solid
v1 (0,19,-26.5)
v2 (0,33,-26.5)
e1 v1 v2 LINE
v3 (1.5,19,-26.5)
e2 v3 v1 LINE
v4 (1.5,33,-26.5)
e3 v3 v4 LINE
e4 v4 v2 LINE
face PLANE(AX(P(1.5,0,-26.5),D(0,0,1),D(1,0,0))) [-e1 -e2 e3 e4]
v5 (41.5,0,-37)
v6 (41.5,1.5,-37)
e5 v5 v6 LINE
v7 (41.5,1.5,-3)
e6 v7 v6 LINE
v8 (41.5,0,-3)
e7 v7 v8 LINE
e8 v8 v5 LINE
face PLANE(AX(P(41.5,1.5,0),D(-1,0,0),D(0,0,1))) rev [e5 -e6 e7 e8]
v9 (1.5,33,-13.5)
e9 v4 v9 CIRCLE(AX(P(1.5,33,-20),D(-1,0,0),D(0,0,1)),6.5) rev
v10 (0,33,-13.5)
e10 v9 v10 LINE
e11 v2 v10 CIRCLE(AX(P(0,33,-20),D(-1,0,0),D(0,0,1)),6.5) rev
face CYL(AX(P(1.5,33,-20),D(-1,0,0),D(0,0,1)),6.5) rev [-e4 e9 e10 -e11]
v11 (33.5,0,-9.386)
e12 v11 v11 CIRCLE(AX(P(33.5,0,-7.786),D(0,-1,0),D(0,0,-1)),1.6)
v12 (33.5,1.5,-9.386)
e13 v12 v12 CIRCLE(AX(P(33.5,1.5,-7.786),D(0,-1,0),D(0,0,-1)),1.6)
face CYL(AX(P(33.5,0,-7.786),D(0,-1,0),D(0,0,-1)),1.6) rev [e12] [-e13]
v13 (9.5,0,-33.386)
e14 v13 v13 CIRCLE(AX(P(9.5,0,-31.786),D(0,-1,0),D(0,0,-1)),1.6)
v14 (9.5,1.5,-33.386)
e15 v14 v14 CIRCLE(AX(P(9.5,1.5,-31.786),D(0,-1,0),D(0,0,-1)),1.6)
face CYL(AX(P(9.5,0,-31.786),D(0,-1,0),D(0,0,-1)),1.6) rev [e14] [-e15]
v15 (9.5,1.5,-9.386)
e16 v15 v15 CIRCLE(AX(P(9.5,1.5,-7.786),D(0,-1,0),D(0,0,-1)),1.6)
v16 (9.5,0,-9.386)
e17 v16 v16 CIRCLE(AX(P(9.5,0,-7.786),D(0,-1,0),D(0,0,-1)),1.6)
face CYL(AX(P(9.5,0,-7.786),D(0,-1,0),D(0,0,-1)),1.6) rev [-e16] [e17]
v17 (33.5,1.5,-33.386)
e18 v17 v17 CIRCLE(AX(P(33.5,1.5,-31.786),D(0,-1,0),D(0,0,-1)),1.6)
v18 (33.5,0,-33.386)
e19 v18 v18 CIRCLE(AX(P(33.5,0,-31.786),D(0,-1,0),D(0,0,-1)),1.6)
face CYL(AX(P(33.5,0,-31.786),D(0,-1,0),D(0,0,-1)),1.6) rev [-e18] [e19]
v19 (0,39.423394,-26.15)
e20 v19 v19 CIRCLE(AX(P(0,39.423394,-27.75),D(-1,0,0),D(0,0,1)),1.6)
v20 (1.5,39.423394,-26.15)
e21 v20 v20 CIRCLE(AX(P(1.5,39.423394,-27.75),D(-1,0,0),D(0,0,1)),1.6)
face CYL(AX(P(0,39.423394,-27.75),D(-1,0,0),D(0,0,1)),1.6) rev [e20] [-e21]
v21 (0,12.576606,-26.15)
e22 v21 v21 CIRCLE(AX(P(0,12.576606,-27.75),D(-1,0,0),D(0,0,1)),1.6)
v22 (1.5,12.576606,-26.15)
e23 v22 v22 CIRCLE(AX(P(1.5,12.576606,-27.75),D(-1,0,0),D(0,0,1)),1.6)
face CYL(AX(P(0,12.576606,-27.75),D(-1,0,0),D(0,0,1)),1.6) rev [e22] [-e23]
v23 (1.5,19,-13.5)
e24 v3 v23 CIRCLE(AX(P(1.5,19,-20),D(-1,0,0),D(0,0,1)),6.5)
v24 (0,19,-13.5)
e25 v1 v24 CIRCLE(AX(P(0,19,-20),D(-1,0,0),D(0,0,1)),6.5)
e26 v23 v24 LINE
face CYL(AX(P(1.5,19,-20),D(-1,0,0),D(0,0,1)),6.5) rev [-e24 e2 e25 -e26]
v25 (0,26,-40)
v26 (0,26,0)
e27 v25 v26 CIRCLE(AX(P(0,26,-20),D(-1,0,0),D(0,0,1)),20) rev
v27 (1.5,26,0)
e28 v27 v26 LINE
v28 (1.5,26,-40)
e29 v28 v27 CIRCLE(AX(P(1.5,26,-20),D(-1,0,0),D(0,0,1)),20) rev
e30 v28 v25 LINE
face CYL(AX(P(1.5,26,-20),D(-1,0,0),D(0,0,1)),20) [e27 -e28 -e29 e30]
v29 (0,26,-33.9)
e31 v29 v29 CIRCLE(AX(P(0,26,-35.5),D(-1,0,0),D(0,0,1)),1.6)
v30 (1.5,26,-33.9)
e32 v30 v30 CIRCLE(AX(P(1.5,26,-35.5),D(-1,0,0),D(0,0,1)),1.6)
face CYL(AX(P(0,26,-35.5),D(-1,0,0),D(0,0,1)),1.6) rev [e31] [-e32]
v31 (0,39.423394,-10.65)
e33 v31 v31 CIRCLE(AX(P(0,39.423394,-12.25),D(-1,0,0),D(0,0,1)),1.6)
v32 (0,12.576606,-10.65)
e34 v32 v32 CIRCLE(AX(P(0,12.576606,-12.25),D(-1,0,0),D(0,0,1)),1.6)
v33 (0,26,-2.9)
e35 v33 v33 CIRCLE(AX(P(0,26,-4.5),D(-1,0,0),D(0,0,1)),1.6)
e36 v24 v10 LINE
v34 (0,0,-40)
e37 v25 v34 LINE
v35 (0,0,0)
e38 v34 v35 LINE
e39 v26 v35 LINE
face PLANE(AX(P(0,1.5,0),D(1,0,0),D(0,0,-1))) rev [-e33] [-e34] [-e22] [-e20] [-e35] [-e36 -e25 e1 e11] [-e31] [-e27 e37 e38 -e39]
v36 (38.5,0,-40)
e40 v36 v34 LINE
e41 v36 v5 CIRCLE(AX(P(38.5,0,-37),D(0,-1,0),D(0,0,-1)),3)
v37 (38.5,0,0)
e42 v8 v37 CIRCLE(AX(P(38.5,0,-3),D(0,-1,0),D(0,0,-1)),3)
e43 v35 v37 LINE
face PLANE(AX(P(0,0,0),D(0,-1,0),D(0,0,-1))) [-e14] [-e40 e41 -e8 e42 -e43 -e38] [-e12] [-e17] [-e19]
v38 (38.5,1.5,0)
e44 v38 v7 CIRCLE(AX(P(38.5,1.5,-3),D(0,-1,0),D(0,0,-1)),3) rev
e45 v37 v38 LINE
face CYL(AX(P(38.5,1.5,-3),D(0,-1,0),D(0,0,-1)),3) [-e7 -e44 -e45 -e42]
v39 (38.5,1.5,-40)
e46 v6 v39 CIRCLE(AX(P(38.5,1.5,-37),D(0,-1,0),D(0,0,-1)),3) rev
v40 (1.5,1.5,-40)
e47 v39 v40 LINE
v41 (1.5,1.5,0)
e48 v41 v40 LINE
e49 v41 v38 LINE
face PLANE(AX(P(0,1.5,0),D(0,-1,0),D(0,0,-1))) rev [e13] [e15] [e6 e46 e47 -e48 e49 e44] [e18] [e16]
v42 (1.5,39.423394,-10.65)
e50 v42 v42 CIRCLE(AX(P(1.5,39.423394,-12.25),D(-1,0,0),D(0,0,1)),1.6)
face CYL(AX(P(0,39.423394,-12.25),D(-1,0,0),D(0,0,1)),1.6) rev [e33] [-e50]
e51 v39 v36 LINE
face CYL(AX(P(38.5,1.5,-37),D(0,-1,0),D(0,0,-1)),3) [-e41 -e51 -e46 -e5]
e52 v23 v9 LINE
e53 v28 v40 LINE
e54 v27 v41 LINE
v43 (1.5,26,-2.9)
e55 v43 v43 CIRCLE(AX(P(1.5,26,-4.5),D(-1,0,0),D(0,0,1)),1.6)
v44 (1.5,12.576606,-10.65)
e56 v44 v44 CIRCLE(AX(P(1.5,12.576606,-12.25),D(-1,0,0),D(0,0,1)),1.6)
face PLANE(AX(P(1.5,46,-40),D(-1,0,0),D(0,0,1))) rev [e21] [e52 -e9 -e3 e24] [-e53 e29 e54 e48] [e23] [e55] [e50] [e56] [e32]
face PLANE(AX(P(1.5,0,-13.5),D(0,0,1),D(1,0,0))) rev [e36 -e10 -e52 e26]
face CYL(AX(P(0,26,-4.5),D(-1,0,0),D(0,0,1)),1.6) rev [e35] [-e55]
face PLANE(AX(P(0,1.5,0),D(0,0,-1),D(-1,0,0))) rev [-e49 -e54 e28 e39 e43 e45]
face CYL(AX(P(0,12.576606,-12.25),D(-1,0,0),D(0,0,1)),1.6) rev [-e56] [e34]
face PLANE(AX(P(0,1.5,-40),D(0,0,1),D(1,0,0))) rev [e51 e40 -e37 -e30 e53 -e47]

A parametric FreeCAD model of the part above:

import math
import FreeCAD as App
import Part
import Sketcher
from FreeCAD import Vector


def edges_at(feature, points):
    """Names of the edges that pass closest to the given points."""
    edges = feature.Shape.Edges
    near = lambda p: min(range(len(edges)), key=lambda i: edges[i].distToShape(Part.Vertex(*p))[0])
    return sorted({f"Edge{near(p) + 1}" for p in points})


def add_polygon(sketch, points):
    """Adds a closed chain of lines whose ends are joined by coincident constraints."""
    first, n = sketch.GeometryCount, len(points)
    for a, b in zip(points, points[1:] + points[:1]):
        sketch.addGeometry(Part.LineSegment(App.Vector(*a, 0), App.Vector(*b, 0)), False)
    for i in range(n):
        sketch.addConstraint(Sketcher.Constraint("Coincident", first + i, 2, first + (i + 1) % n, 1))

doc = App.newDocument("Part")
params = doc.addObject("Spreadsheet::Sheet", "Params")
for row, (alias, value) in enumerate([
    ("sketch1_height", "40 mm"),
    ("sketch1_width", "41.5 mm"),
    ("pad1_length", "1.5 mm"),
    ("sketch2_height", "40 mm"),
    ("sketch2_width", "1.5 mm"),
    ("pad2_length", "44.5 mm"),
    ("sketch3_radius", "20 mm"),
    ("sketch3_radius2", "6.5 mm"),
    ("sketch3_width", "14 mm"),
    ("pocket1_length", "1.5 mm"),
    ("sketch4_diameter", "3.2 mm"),
    ("hole_diameter", "3.2 mm"),
    ("sketch5_diameter", "3.2 mm"),
    ("hole2_diameter", "3.2 mm"),
    ("hole2_depth", "1.5 mm"),
    ("fillet_radius", "3 mm"),
], start=1):
    params.set(f"A{row}", alias)
    params.set(f"B{row}", "=" + value)
    params.setAlias(f"B{row}", alias)

body = doc.addObject("PartDesign::Body", "Body")

sketch1 = doc.addObject("Sketcher::SketchObject", "Sketch")
body.addObject(sketch1)
sketch1.AttachmentSupport = (doc.XZ_Plane, [""])
sketch1.MapMode = "FlatFace"
add_polygon(sketch1, [(0, -40), (0, 0), (41.5, 0), (41.5, -40)])
sketch1.addConstraint([
    Sketcher.Constraint("Vertical", 0),
    Sketcher.Constraint("Horizontal", 1),
    Sketcher.Constraint("Vertical", 2),
    Sketcher.Constraint("Horizontal", 3),
    Sketcher.Constraint("Coincident", 0, 2, -1, 1),
    Sketcher.Constraint("DistanceY", 0, 1, 0, 2, 40.0),
    Sketcher.Constraint("DistanceX", 1, 1, 1, 2, 41.5),
])
sketch1.setExpression("Constraints[9]", "Params.sketch1_height")
sketch1.setExpression("Constraints[10]", "Params.sketch1_width")
pad1 = doc.addObject("PartDesign::Pad", "Pad")
body.addObject(pad1)
pad1.Profile = sketch1
pad1.setExpression("Length", "Params.pad1_length")
pad1.Reversed = True

sketch2 = doc.addObject("Sketcher::SketchObject", "Sketch001")
body.addObject(sketch2)
sketch2.AttachmentSupport = (doc.XZ_Plane, [""])
sketch2.MapMode = "FlatFace"
sketch2.AttachmentOffset = App.Placement(Vector(0, 0, -1.5), App.Rotation())
add_polygon(sketch2, [(0, -40), (0, 0), (1.5, 0), (1.5, -40)])
sketch2.addConstraint([
    Sketcher.Constraint("Vertical", 0),
    Sketcher.Constraint("Horizontal", 1),
    Sketcher.Constraint("Vertical", 2),
    Sketcher.Constraint("Horizontal", 3),
    Sketcher.Constraint("Coincident", 0, 2, -1, 1),
    Sketcher.Constraint("DistanceY", 0, 1, 0, 2, 40.0),
    Sketcher.Constraint("DistanceX", 1, 1, 1, 2, 1.5),
])
sketch2.setExpression("Constraints[9]", "Params.sketch2_height")
sketch2.setExpression("Constraints[10]", "Params.sketch2_width")
pad2 = doc.addObject("PartDesign::Pad", "Pad001")
body.addObject(pad2)
pad2.Profile = sketch2
pad2.setExpression("Length", "Params.pad2_length")
pad2.Reversed = True

sketch3 = doc.addObject("Sketcher::SketchObject", "Sketch002")
body.addObject(sketch3)
sketch3.AttachmentSupport = (doc.YZ_Plane, [""])
sketch3.MapMode = "FlatFace"
sketch3.addGeometry([
    Part.LineSegment(Vector(46, -40, 0), Vector(26, -40, 0)),
    Part.ArcOfCircle(Part.Circle(Vector(26, -20, 0), Vector(0, 0, 1), 20), math.radians(-90), math.radians(0)),
    Part.LineSegment(Vector(46, -20, 0), Vector(46, -40, 0)),
    Part.LineSegment(Vector(46, 0, 0), Vector(46, -20, 0)),
    Part.ArcOfCircle(Part.Circle(Vector(26, -20, 0), Vector(0, 0, 1), 20), math.radians(0), math.radians(90)),
    Part.LineSegment(Vector(26, 0, 0), Vector(46, 0, 0)),
    Part.LineSegment(Vector(33, -26.5, 0), Vector(19, -26.5, 0)),
    Part.ArcOfCircle(Part.Circle(Vector(19, -20, 0), Vector(0, 0, 1), 6.5), math.radians(90), math.radians(270)),
    Part.LineSegment(Vector(19, -13.5, 0), Vector(33, -13.5, 0)),
    Part.ArcOfCircle(Part.Circle(Vector(33, -20, 0), Vector(0, 0, 1), 6.5), math.radians(-90), math.radians(90)),
], False)
sketch3.addConstraint([
    Sketcher.Constraint("Tangent", 0, 2, 1, 1),
    Sketcher.Constraint("Tangent", 1, 2, 2, 1),
    Sketcher.Constraint("Coincident", 2, 2, 0, 1),
    Sketcher.Constraint("Tangent", 3, 2, 4, 1),
    Sketcher.Constraint("Tangent", 4, 2, 5, 1),
    Sketcher.Constraint("Coincident", 5, 2, 3, 1),
    Sketcher.Constraint("Tangent", 6, 2, 7, 2),
    Sketcher.Constraint("Tangent", 7, 1, 8, 1),
    Sketcher.Constraint("Tangent", 8, 2, 9, 2),
    Sketcher.Constraint("Tangent", 9, 1, 6, 1),
    Sketcher.Constraint("Horizontal", 0),
    Sketcher.Constraint("Vertical", 2),
    Sketcher.Constraint("Vertical", 3),
    Sketcher.Constraint("Horizontal", 5),
    Sketcher.Constraint("Horizontal", 6),
    Sketcher.Constraint("Horizontal", 8),
    Sketcher.Constraint("Coincident", 4, 3, 1, 3),
    Sketcher.Constraint("Equal", 1, 4),
    Sketcher.Constraint("PointOnObject", 4, 2, -1),
    Sketcher.Constraint("Horizontal", 4, 3, 7, 3),
    Sketcher.Constraint("Radius", 1, 20.0),
    Sketcher.Constraint("Radius", 7, 6.5),
    Sketcher.Constraint("DistanceX", 6, 2, 6, 1, 14.0),
    Sketcher.Constraint("DistanceX", -1, 1, 1, 3, 26.0),
    Sketcher.Constraint("DistanceX", -1, 1, 7, 3, 19.0),
])
sketch3.setExpression("Constraints[20]", "Params.sketch3_radius")
sketch3.setExpression("Constraints[21]", "Params.sketch3_radius2")
sketch3.setExpression("Constraints[22]", "Params.sketch3_width")
pocket1 = doc.addObject("PartDesign::Pocket", "Pocket")
body.addObject(pocket1)
pocket1.Profile = sketch3
pocket1.setExpression("Length", "Params.pocket1_length")
pocket1.Reversed = True

sketch4 = doc.addObject("Sketcher::SketchObject", "Sketch003")
body.addObject(sketch4)
sketch4.AttachmentSupport = (doc.YZ_Plane, [""])
sketch4.MapMode = "FlatFace"
sketch4.addGeometry([
    Part.Circle(Vector(39.423394, -12.25, 0), Vector(0, 0, 1), 1.6),
    Part.Circle(Vector(26, -4.5, 0), Vector(0, 0, 1), 1.6),
    Part.Circle(Vector(12.576606, -12.25, 0), Vector(0, 0, 1), 1.6),
    Part.Circle(Vector(12.576606, -27.75, 0), Vector(0, 0, 1), 1.6),
    Part.Circle(Vector(26, -35.5, 0), Vector(0, 0, 1), 1.6),
    Part.Circle(Vector(39.423394, -27.75, 0), Vector(0, 0, 1), 1.6),
], False)
sketch4.addConstraint([
    Sketcher.Constraint("Equal", 0, 1),
    Sketcher.Constraint("Equal", 1, 2),
    Sketcher.Constraint("Equal", 2, 3),
    Sketcher.Constraint("Equal", 3, 4),
    Sketcher.Constraint("Equal", 4, 5),
    Sketcher.Constraint("Horizontal", 0, 3, 2, 3),
    Sketcher.Constraint("Horizontal", 3, 3, 5, 3),
    Sketcher.Constraint("Vertical", 2, 3, 3, 3),
    Sketcher.Constraint("Vertical", 1, 3, 4, 3),
    Sketcher.Constraint("Vertical", 0, 3, 5, 3),
    Sketcher.Constraint("Diameter", 0, 3.2),
    Sketcher.Constraint("DistanceX", -1, 1, 1, 3, 26.0),
    Sketcher.Constraint("DistanceY", 4, 3, 1, 3, 31.0),
    Sketcher.Constraint("DistanceY", 1, 3, -1, 1, 4.5),
    Sketcher.Constraint("DistanceY", 3, 3, 2, 3, 15.5),
    Sketcher.Constraint("DistanceY", 0, 3, -1, 1, 12.25),
    Sketcher.Constraint("DistanceX", -1, 1, 0, 3, 39.423394),
    Sketcher.Constraint("DistanceX", -1, 1, 2, 3, 12.576606),
])
sketch4.setExpression("Constraints[10]", "Params.sketch4_diameter")
doc.recompute()
hole = doc.addObject("PartDesign::Hole", "Hole")
body.addObject(hole)
hole.Profile = sketch4
hole.ThreadType = "None"
hole.setExpression("Diameter", "Params.hole_diameter")
hole.DepthType = "ThroughAll"
hole.Reversed = True

sketch5 = doc.addObject("Sketcher::SketchObject", "Sketch004")
body.addObject(sketch5)
sketch5.AttachmentSupport = (doc.XZ_Plane, [""])
sketch5.MapMode = "FlatFace"
sketch5.addGeometry([
    Part.Circle(Vector(9.5, -31.786, 0), Vector(0, 0, 1), 1.6),
    Part.Circle(Vector(33.5, -31.786, 0), Vector(0, 0, 1), 1.6),
    Part.Circle(Vector(33.5, -7.786, 0), Vector(0, 0, 1), 1.6),
    Part.Circle(Vector(9.5, -7.786, 0), Vector(0, 0, 1), 1.6),
], False)
sketch5.addConstraint([
    Sketcher.Constraint("Equal", 0, 1),
    Sketcher.Constraint("Equal", 1, 2),
    Sketcher.Constraint("Equal", 2, 3),
    Sketcher.Constraint("Horizontal", 0, 3, 1, 3),
    Sketcher.Constraint("Horizontal", 2, 3, 3, 3),
    Sketcher.Constraint("Vertical", 1, 3, 2, 3),
    Sketcher.Constraint("Vertical", 0, 3, 3, 3),
    Sketcher.Constraint("Diameter", 0, 3.2),
    Sketcher.Constraint("DistanceX", 0, 3, 1, 3, 24.0),
    Sketcher.Constraint("DistanceY", 1, 3, 2, 3, 24.0),
    Sketcher.Constraint("DistanceX", -1, 1, 0, 3, 9.5),
    Sketcher.Constraint("DistanceY", 0, 3, -1, 1, 31.786),
])
sketch5.setExpression("Constraints[7]", "Params.sketch5_diameter")
doc.recompute()
hole2 = doc.addObject("PartDesign::Hole", "Hole001")
body.addObject(hole2)
hole2.Profile = sketch5
hole2.ThreadType = "None"
hole2.setExpression("Diameter", "Params.hole2_diameter")
hole2.DepthType = "Dimension"
hole2.setExpression("Depth", "Params.hole2_depth")
hole2.DrillPoint = "Angled"
hole2.DrillPointAngle = 118
doc.recompute()

fillet = doc.addObject("PartDesign::Fillet", "Fillet")
body.addObject(fillet)
fillet.Base = (hole2, edges_at(hole2, [(41.5, 0.75, -40), (41.5, 0.75, 0)]))
fillet.setExpression("Radius", "Params.fillet_radius")

doc.recompute()
